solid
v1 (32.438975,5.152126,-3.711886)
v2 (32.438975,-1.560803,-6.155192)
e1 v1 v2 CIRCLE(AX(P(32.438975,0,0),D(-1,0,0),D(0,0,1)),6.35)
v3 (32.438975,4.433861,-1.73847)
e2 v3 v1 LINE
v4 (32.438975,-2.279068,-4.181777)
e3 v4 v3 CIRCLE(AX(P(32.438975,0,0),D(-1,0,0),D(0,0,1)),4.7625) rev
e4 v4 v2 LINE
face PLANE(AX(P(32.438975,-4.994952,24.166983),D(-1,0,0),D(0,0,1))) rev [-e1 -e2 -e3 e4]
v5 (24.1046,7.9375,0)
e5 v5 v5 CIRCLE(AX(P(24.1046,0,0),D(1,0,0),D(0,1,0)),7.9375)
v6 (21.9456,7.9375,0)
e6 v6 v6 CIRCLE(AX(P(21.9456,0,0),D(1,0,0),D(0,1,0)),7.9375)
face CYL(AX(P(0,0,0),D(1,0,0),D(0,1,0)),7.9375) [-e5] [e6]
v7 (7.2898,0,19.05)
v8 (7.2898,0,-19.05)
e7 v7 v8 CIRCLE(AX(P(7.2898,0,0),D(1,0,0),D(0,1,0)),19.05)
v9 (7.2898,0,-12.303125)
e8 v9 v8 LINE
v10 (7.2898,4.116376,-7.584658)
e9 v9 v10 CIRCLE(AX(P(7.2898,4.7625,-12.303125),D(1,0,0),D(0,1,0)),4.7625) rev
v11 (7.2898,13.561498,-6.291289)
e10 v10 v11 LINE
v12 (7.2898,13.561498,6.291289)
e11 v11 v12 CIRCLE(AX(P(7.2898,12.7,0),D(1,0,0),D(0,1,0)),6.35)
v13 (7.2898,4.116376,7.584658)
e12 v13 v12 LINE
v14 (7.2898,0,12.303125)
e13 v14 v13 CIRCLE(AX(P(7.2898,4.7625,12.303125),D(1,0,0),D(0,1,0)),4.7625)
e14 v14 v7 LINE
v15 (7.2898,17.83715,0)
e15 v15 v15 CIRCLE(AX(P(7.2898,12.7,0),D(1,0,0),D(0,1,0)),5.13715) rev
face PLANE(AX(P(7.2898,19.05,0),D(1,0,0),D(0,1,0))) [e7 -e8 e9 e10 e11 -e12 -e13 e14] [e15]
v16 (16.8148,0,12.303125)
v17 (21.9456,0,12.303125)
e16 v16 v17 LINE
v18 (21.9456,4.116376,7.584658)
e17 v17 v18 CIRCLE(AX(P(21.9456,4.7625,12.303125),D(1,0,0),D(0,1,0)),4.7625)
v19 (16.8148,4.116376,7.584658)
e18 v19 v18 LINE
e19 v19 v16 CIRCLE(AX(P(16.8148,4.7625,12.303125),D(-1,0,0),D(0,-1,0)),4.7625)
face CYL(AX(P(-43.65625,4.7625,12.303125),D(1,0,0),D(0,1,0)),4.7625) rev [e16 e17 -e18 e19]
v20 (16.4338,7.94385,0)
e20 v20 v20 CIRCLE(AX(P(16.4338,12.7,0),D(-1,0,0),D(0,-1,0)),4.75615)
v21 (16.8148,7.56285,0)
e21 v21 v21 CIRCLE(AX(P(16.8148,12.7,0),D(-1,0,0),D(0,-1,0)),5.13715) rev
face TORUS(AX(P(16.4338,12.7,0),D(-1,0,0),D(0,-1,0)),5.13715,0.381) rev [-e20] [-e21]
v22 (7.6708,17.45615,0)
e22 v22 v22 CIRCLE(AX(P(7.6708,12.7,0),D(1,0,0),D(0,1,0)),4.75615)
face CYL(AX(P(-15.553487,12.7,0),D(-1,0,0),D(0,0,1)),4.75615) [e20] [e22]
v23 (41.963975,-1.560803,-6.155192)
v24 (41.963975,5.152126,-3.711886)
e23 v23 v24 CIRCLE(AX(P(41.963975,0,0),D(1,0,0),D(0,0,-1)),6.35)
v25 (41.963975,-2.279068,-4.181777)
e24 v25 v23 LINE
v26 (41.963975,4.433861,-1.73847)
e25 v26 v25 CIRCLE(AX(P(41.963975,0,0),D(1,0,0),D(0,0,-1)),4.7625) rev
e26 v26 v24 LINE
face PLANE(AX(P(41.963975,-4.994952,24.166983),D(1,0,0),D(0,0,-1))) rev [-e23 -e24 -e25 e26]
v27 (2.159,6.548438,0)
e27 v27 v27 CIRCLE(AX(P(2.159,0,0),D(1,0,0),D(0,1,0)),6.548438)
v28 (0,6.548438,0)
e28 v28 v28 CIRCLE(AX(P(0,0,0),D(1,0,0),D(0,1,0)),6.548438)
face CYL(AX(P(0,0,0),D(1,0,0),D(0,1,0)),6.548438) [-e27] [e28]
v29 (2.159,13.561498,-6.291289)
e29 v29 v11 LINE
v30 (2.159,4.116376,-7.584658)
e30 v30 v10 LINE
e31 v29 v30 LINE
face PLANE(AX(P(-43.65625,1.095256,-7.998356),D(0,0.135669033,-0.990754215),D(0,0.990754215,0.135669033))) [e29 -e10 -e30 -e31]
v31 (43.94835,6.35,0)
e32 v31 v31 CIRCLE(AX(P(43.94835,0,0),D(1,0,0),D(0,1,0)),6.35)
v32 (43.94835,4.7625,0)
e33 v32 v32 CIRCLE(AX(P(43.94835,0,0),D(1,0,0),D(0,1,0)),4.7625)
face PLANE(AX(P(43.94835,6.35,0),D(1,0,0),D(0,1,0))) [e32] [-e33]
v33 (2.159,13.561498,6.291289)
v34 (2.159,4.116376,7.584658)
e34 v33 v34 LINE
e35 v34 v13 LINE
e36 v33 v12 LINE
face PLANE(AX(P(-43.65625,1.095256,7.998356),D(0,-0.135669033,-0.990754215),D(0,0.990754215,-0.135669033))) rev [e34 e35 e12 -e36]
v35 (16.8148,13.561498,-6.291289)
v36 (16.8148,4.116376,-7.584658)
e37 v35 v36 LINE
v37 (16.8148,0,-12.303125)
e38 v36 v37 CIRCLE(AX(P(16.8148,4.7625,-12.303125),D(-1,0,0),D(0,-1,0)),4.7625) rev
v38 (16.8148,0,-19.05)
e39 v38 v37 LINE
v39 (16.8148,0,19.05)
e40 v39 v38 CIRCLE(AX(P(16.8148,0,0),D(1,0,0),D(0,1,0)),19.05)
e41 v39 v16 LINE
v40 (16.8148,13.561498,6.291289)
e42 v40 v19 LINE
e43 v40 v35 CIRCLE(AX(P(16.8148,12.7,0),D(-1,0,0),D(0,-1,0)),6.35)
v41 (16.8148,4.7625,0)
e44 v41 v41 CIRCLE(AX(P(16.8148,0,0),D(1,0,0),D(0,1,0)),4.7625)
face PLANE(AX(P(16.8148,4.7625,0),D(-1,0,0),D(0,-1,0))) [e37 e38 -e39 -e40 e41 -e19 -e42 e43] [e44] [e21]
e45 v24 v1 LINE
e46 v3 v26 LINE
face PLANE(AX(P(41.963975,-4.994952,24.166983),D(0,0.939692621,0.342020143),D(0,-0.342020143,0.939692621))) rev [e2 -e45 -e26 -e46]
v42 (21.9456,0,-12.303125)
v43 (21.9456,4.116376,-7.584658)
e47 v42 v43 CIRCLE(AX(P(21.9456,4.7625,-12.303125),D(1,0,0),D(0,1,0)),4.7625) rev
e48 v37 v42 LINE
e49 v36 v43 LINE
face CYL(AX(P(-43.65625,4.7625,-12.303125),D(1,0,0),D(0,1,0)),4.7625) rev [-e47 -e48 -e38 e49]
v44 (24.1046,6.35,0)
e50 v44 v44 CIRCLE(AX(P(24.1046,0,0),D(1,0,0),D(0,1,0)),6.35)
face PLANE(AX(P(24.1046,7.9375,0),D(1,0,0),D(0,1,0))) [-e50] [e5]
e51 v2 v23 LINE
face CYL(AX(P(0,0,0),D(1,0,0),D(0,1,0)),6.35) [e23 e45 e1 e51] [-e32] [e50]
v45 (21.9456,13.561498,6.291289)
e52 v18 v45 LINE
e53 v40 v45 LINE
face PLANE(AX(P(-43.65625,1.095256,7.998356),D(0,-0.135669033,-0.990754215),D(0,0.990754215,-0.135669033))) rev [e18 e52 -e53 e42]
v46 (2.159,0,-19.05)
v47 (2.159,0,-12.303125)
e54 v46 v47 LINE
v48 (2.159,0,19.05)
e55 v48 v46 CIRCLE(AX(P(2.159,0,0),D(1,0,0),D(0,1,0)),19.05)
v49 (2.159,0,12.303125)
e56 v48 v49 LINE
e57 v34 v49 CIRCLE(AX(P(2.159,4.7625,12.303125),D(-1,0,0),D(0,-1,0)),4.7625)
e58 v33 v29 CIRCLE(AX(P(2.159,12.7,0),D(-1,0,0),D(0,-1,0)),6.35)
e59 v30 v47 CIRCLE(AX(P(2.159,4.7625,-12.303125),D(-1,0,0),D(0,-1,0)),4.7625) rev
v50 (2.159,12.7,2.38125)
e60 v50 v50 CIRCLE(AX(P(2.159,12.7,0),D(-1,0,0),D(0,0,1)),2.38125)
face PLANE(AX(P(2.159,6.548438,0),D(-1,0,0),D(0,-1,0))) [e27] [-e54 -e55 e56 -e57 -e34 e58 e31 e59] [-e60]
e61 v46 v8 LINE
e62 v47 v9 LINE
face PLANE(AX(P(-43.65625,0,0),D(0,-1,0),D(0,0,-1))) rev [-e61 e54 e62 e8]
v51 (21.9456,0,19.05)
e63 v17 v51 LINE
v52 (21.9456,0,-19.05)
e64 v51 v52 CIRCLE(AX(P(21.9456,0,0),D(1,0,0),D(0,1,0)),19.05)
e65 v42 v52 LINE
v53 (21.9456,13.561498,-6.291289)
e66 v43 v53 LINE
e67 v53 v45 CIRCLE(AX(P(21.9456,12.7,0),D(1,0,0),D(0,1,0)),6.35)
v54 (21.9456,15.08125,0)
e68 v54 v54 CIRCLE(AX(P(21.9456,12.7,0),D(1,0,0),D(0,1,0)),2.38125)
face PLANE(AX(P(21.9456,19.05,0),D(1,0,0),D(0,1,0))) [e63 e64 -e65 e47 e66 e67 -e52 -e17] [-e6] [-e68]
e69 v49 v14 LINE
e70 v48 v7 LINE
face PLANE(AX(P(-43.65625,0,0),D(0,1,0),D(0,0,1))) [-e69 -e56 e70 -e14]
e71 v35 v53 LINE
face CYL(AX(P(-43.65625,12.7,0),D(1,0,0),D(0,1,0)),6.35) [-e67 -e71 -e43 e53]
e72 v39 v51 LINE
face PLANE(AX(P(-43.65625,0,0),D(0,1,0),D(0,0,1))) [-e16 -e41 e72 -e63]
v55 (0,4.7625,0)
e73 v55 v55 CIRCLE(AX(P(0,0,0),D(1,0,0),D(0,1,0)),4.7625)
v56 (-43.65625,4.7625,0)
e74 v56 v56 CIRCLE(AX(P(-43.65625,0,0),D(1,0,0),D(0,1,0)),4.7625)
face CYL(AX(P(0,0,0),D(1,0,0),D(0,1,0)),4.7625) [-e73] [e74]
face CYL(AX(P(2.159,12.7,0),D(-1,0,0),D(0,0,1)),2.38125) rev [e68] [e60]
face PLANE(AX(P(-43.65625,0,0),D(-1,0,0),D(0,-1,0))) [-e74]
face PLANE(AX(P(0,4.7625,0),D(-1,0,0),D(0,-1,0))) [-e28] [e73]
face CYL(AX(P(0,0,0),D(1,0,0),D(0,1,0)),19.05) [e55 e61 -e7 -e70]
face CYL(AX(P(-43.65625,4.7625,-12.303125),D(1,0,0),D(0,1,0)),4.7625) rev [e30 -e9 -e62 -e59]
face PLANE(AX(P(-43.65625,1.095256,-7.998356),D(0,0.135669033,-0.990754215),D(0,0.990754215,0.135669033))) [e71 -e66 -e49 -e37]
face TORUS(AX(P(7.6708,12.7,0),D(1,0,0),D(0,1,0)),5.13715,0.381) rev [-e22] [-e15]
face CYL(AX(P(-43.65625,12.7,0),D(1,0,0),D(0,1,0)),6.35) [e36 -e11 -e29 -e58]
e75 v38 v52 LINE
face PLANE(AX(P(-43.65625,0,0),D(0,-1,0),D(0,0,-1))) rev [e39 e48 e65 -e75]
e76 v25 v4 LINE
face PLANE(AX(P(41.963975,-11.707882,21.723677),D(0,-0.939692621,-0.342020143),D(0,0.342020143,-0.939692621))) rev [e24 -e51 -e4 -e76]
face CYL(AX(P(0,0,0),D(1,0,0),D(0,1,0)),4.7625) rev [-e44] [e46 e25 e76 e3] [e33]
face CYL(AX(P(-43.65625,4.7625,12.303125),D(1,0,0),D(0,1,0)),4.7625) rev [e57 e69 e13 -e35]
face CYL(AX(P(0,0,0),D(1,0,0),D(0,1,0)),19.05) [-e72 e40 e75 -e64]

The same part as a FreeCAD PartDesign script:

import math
import FreeCAD as App
import Part
import Sketcher

V = App.Vector
Q = App.Units.Quantity


def edges_at(feature, points):
    """Names of the edges that pass closest to the given points."""
    edges = feature.Shape.Edges
    near = lambda p: min(range(len(edges)), key=lambda i: edges[i].distToShape(Part.Vertex(*p))[0])
    return sorted({f"Edge{near(p) + 1}" for p in points})


def add_polygon(sketch, points):
    """Adds a closed chain of lines whose ends are joined by coincident constraints."""
    first, n = sketch.GeometryCount, len(points)
    for a, b in zip(points, points[1:] + points[:1]):
        sketch.addGeometry(Part.LineSegment(App.Vector(*a, 0), App.Vector(*b, 0)), False)
    for i in range(n):
        sketch.addConstraint(Sketcher.Constraint("Coincident", first + i, 2, first + (i + 1) % n, 1))

doc = App.newDocument("Part")
body = doc.addObject("PartDesign::Body", "Body")
body.AllowCompound = True

# Sketch on XY plane
sketch1 = doc.addObject("Sketcher::SketchObject", "Sketch")
body.addObject(sketch1)
sketch1.AttachmentSupport = (doc.XY_Plane, [""])
sketch1.MapMode = "FlatFace"
add_polygon(sketch1, [(-43.7, 4.8), (-43.7, 0), (7.3, 0), (7.3, 19.1), (2.2, 19.1), (2.2, 6.5), (0, 6.5), (0, 4.8)])  # lines 0-7
add_polygon(sketch1, [(16.8, 19.1), (16.8, 4.8), (43.9, 4.8), (43.9, 6.3), (24.1, 6.3), (24.1, 7.9), (21.9, 7.9), (21.9, 19.1)])  # lines 8-15
sketch1.addConstraint(Sketcher.Constraint("Vertical", 0))
sketch1.addConstraint(Sketcher.Constraint("Horizontal", 1))
sketch1.addConstraint(Sketcher.Constraint("Vertical", 2))
sketch1.addConstraint(Sketcher.Constraint("Horizontal", 3))
sketch1.addConstraint(Sketcher.Constraint("Vertical", 4))
sketch1.addConstraint(Sketcher.Constraint("Horizontal", 5))
sketch1.addConstraint(Sketcher.Constraint("Vertical", 6))
sketch1.addConstraint(Sketcher.Constraint("Horizontal", 7))
sketch1.addConstraint(Sketcher.Constraint("Vertical", 8))
sketch1.addConstraint(Sketcher.Constraint("Horizontal", 9))
sketch1.addConstraint(Sketcher.Constraint("Vertical", 10))
sketch1.addConstraint(Sketcher.Constraint("Horizontal", 11))
sketch1.addConstraint(Sketcher.Constraint("Vertical", 12))
sketch1.addConstraint(Sketcher.Constraint("Horizontal", 13))
sketch1.addConstraint(Sketcher.Constraint("Vertical", 14))
sketch1.addConstraint(Sketcher.Constraint("Horizontal", 15))
sketch1.addConstraint(Sketcher.Constraint("PointOnObject", 0, 2, -1))
sketch1.addConstraint(Sketcher.Constraint("PointOnObject", 5, 2, -2))
sketch1.addConstraint(Sketcher.Constraint("Horizontal", 7, 2, 8, 2))
sketch1.addConstraint(Sketcher.Constraint("Horizontal", 3, 2, 14, 2))
sketch1.addConstraint(Sketcher.Constraint("Equal", 5, 13))
sketch1.addConstraint(Sketcher.Constraint("Equal", 3, 15))
sketch1.addConstraint(Sketcher.Constraint("Equal", 10, 12))
sketch1.addConstraint(Sketcher.Constraint("DistanceY", 2, 1, 2, 2, Q("0.75 in")))
sketch1.addConstraint(Sketcher.Constraint("DistanceY", 10, 2, 2, 2, Q("0.5 in")))
sketch1.addConstraint(Sketcher.Constraint("DistanceX", 3, 2, 3, 1, Q("0.202 in")))
sketch1.addConstraint(Sketcher.Constraint("DistanceX", 5, 2, 5, 1, Q("0.085 in")))
sketch1.addConstraint(Sketcher.Constraint("DistanceX", 7, 2, 7, 1, Q("1.71875 in")))
sketch1.addConstraint(Sketcher.Constraint("DistanceX", 11, 2, 11, 1, Q("0.78125 in")))
sketch1.addConstraint(Sketcher.Constraint("DistanceY", 0, 2, 0, 1, Q("0.1875 in")))
sketch1.addConstraint(Sketcher.Constraint("DistanceX", -1, 1, 8, 2, Q("0.662 in")))
sketch1.addConstraint(Sketcher.Constraint("DistanceY", 4, 2, 4, 1, 12.501563))
revolution = doc.addObject("PartDesign::Revolution", "Revolution")
body.addObject(revolution)
revolution.Profile = sketch1
revolution.ReferenceAxis = (sketch1, ["H_Axis"])
revolution.Angle = 360

# Sketch on XY plane
sketch2 = doc.addObject("Sketcher::SketchObject", "Sketch001")
body.addObject(sketch2)
sketch2.AttachmentSupport = (doc.XY_Plane, [""])
sketch2.MapMode = "FlatFace"
add_polygon(sketch2, [(7.3, 17.5), (7.3, 12.7), (16.8, 12.7), (16.8, 17.5)])  # lines 0-3
sketch2.addGeometry(Part.LineSegment(V(7.3, 12.7, 0), V(16.8, 12.7, 0)), True)  # axis
sketch2.addConstraint(Sketcher.Constraint("Vertical", 0))
sketch2.addConstraint(Sketcher.Constraint("Horizontal", 1))
sketch2.addConstraint(Sketcher.Constraint("Vertical", 2))
sketch2.addConstraint(Sketcher.Constraint("Horizontal", 3))
sketch2.addConstraint(Sketcher.Constraint("Horizontal", 4))
sketch2.addConstraint(Sketcher.Constraint("Coincident", 4, 1, 0, 2))
sketch2.addConstraint(Sketcher.Constraint("Vertical", 2, 2, 4, 2))
sketch2.addConstraint(Sketcher.Constraint("DistanceY", -1, 1, 0, 2, Q("0.5 in")))
sketch2.addConstraint(Sketcher.Constraint("DistanceX", 1, 1, 1, 2, Q("0.375 in")))
sketch2.addConstraint(Sketcher.Constraint("DistanceX", -1, 1, 0, 2, Q("0.287 in")))
sketch2.addConstraint(Sketcher.Constraint("DistanceY", 0, 2, 0, 1, 4.75615))
revolution2 = doc.addObject("PartDesign::Revolution", "Revolution001")
body.addObject(revolution2)
revolution2.Profile = sketch2
revolution2.ReferenceAxis = (sketch2, ["Axis0"])
revolution2.Angle = 360

# Sketch on an angled plane
sketch3 = doc.addObject("Sketcher::SketchObject", "Sketch002")
body.addObject(sketch3)
sketch3.Placement = App.Placement(V(7.2898, 6.515484, -17.901144), App.Rotation(V(-1, 0, 0), V(0, 0.939692621, 0.342020143), V(0, 0.342020143, -0.939692621), "ZXY"))
add_polygon(sketch3, [(-35, 4), (-35, -4), (-25, -4), (-25, 4)])  # lines 0-3
sketch3.addConstraint(Sketcher.Constraint("Vertical", 0))
sketch3.addConstraint(Sketcher.Constraint("Horizontal", 1))
sketch3.addConstraint(Sketcher.Constraint("Vertical", 2))
sketch3.addConstraint(Sketcher.Constraint("Horizontal", 3))
sketch3.addConstraint(Sketcher.Constraint("DistanceX", 1, 1, 1, 2, Q("0.375 in")))
sketch3.addConstraint(Sketcher.Constraint("DistanceY", 0, 2, 0, 1, Q("0.28125 in")))
sketch3.addConstraint(Sketcher.Constraint("DistanceY", 0, 2, -1, 1, Q("0.140625 in")))
sketch3.addConstraint(Sketcher.Constraint("DistanceX", 0, 2, -1, 1, 34.674175))
pocket1 = doc.addObject("PartDesign::Pocket", "Pocket")
body.addObject(pocket1)
pocket1.Profile = sketch3
pocket1.Length = 15.899902

# Sketch on an angled plane
sketch4 = doc.addObject("Sketcher::SketchObject", "Sketch003")
body.addObject(sketch4)
sketch4.Placement = App.Placement(V(7.2898, 6.515484, -17.901144), App.Rotation(V(-1, 0, 0), V(0, 0.939692621, 0.342020143), V(0, 0.342020143, -0.939692621), "ZXY"))
add_polygon(sketch4, [(-35, 4), (-35, -4), (-25, -4), (-25, 4)])  # lines 0-3
sketch4.addConstraint(Sketcher.Constraint("Vertical", 0))
sketch4.addConstraint(Sketcher.Constraint("Horizontal", 1))
sketch4.addConstraint(Sketcher.Constraint("Vertical", 2))
sketch4.addConstraint(Sketcher.Constraint("Horizontal", 3))
sketch4.addConstraint(Sketcher.Constraint("DistanceX", 1, 1, 1, 2, Q("0.375 in")))
sketch4.addConstraint(Sketcher.Constraint("DistanceY", 0, 2, 0, 1, Q("0.28125 in")))
sketch4.addConstraint(Sketcher.Constraint("DistanceY", 0, 2, -1, 1, Q("0.140625 in")))
sketch4.addConstraint(Sketcher.Constraint("DistanceX", 0, 2, -1, 1, 34.674175))
pocket2 = doc.addObject("PartDesign::Pocket", "Pocket001")
body.addObject(pocket2)
pocket2.Profile = sketch4
pocket2.Length = 68.929972
pocket2.Reversed = True
doc.recompute()

fillet = doc.addObject("PartDesign::Fillet", "Fillet")
body.addObject(fillet)
fillet.Base = (pocket2, edges_at(pocket2, [(7.29, 12.7, -4.756), (16.815, 12.7, -4.756)]))
fillet.Radius = Q("0.015 in")

# Sketch on YZ plane
sketch5 = doc.addObject("Sketcher::SketchObject", "Sketch004")
body.addObject(sketch5)
sketch5.AttachmentSupport = (doc.YZ_Plane, [""])
sketch5.MapMode = "FlatFace"
sketch5.AttachmentOffset = App.Placement(V(0, 0, 0.864 * 25.4), App.Rotation())
sketch5.addGeometry(Part.ArcOfCircle(Part.Circle(V(12.7, 0, 0), V(0, 0, 1), 6.3), math.radians(0), math.radians(82)), False)
sketch5.addGeometry(Part.ArcOfCircle(Part.Circle(V(0, 0, 0), V(0, 0, 1), 19.1), math.radians(0), math.radians(90)), False)
sketch5.addGeometry(Part.LineSegment(V(0, 19.1, 0), V(0, 12.3, 0)), False)
sketch5.addGeometry(Part.ArcOfCircle(Part.Circle(V(4.8, 12.3, 0), V(0, 0, 1), 4.8), math.radians(-180), math.radians(-98)), False)
sketch5.addGeometry(Part.LineSegment(V(4.1, 7.6, 0), V(13.6, 6.3, 0)), False)
sketch5.addGeometry(Part.ArcOfCircle(Part.Circle(V(4.8, -12.3, 0), V(0, 0, 1), 4.8), math.radians(98), math.radians(180)), False)
sketch5.addGeometry(Part.LineSegment(V(0, -12.3, 0), V(0, -19.1, 0)), False)
sketch5.addGeometry(Part.ArcOfCircle(Part.Circle(V(0, 0, 0), V(0, 0, 1), 19.1), math.radians(-90), math.radians(0)), False)
sketch5.addGeometry(Part.ArcOfCircle(Part.Circle(V(12.7, 0, 0), V(0, 0, 1), 6.3), math.radians(-82), math.radians(0)), False)
sketch5.addGeometry(Part.LineSegment(V(13.6, -6.3, 0), V(4.1, -7.6, 0)), False)
sketch5.addConstraint(Sketcher.Constraint("Tangent", 0, 1, 1, 1))
sketch5.addConstraint(Sketcher.Constraint("Coincident", 1, 2, 2, 1))
sketch5.addConstraint(Sketcher.Constraint("Tangent", 2, 2, 3, 1))
sketch5.addConstraint(Sketcher.Constraint("Tangent", 3, 2, 4, 1))
sketch5.addConstraint(Sketcher.Constraint("Tangent", 4, 2, 0, 2))
sketch5.addConstraint(Sketcher.Constraint("Tangent", 5, 2, 6, 1))
sketch5.addConstraint(Sketcher.Constraint("Coincident", 6, 2, 7, 1))
sketch5.addConstraint(Sketcher.Constraint("Tangent", 7, 2, 8, 2))
sketch5.addConstraint(Sketcher.Constraint("Tangent", 8, 1, 9, 1))
sketch5.addConstraint(Sketcher.Constraint("Tangent", 9, 2, 5, 1))
sketch5.addConstraint(Sketcher.Constraint("Vertical", 2))
sketch5.addConstraint(Sketcher.Constraint("Vertical", 6))
sketch5.addConstraint(Sketcher.Constraint("Coincident", 1, 3, -1, 1))
sketch5.addConstraint(Sketcher.Constraint("Coincident", 7, 3, -1, 1))
sketch5.addConstraint(Sketcher.Constraint("Coincident", 8, 3, 0, 3))
sketch5.addConstraint(Sketcher.Constraint("Equal", 3, 5))
sketch5.addConstraint(Sketcher.Constraint("Equal", 1, 7))
sketch5.addConstraint(Sketcher.Constraint("Symmetric", 2, 2, 5, 2, -1, 1))
sketch5.addConstraint(Sketcher.Constraint("Symmetric", 4, 2, 8, 1, -1))
sketch5.addConstraint(Sketcher.Constraint("Radius", 0, Q("0.25 in")))
sketch5.addConstraint(Sketcher.Constraint("Radius", 1, Q("0.75 in")))
sketch5.addConstraint(Sketcher.Constraint("Radius", 3, Q("0.1875 in")))
sketch5.addConstraint(Sketcher.Constraint("DistanceY", 2, 2, 2, 1, Q("0.265625 in")))
pocket3 = doc.addObject("PartDesign::Pocket", "Pocket002")
body.addObject(pocket3)
pocket3.Profile = sketch5
pocket3.Type = "ThroughAll"
pocket3.Midplane = True

# Sketch on YZ plane
sketch6 = doc.addObject("Sketcher::SketchObject", "Sketch005")
body.addObject(sketch6)
sketch6.AttachmentSupport = (doc.YZ_Plane, [""])
sketch6.MapMode = "FlatFace"
sketch6.AttachmentOffset = App.Placement(V(0, 0, 0.085 * 25.4), App.Rotation())
sketch6.addGeometry(Part.Circle(V(12.7, 0, 0), V(0, 0, 1), 2.4), False)
sketch6.addConstraint(Sketcher.Constraint("PointOnObject", 0, 3, -1))
sketch6.addConstraint(Sketcher.Constraint("Diameter", 0, Q("0.1875 in")))
sketch6.addConstraint(Sketcher.Constraint("DistanceX", -1, 1, 0, 3, Q("0.5 in")))
doc.recompute()
hole = doc.addObject("PartDesign::Hole", "Hole")
body.addObject(hole)
hole.Profile = sketch6
hole.ThreadType = "None"
hole.Diameter = Q("0.1875 in")
hole.DepthType = "ThroughAll"
hole.Reversed = True

doc.recompute()
